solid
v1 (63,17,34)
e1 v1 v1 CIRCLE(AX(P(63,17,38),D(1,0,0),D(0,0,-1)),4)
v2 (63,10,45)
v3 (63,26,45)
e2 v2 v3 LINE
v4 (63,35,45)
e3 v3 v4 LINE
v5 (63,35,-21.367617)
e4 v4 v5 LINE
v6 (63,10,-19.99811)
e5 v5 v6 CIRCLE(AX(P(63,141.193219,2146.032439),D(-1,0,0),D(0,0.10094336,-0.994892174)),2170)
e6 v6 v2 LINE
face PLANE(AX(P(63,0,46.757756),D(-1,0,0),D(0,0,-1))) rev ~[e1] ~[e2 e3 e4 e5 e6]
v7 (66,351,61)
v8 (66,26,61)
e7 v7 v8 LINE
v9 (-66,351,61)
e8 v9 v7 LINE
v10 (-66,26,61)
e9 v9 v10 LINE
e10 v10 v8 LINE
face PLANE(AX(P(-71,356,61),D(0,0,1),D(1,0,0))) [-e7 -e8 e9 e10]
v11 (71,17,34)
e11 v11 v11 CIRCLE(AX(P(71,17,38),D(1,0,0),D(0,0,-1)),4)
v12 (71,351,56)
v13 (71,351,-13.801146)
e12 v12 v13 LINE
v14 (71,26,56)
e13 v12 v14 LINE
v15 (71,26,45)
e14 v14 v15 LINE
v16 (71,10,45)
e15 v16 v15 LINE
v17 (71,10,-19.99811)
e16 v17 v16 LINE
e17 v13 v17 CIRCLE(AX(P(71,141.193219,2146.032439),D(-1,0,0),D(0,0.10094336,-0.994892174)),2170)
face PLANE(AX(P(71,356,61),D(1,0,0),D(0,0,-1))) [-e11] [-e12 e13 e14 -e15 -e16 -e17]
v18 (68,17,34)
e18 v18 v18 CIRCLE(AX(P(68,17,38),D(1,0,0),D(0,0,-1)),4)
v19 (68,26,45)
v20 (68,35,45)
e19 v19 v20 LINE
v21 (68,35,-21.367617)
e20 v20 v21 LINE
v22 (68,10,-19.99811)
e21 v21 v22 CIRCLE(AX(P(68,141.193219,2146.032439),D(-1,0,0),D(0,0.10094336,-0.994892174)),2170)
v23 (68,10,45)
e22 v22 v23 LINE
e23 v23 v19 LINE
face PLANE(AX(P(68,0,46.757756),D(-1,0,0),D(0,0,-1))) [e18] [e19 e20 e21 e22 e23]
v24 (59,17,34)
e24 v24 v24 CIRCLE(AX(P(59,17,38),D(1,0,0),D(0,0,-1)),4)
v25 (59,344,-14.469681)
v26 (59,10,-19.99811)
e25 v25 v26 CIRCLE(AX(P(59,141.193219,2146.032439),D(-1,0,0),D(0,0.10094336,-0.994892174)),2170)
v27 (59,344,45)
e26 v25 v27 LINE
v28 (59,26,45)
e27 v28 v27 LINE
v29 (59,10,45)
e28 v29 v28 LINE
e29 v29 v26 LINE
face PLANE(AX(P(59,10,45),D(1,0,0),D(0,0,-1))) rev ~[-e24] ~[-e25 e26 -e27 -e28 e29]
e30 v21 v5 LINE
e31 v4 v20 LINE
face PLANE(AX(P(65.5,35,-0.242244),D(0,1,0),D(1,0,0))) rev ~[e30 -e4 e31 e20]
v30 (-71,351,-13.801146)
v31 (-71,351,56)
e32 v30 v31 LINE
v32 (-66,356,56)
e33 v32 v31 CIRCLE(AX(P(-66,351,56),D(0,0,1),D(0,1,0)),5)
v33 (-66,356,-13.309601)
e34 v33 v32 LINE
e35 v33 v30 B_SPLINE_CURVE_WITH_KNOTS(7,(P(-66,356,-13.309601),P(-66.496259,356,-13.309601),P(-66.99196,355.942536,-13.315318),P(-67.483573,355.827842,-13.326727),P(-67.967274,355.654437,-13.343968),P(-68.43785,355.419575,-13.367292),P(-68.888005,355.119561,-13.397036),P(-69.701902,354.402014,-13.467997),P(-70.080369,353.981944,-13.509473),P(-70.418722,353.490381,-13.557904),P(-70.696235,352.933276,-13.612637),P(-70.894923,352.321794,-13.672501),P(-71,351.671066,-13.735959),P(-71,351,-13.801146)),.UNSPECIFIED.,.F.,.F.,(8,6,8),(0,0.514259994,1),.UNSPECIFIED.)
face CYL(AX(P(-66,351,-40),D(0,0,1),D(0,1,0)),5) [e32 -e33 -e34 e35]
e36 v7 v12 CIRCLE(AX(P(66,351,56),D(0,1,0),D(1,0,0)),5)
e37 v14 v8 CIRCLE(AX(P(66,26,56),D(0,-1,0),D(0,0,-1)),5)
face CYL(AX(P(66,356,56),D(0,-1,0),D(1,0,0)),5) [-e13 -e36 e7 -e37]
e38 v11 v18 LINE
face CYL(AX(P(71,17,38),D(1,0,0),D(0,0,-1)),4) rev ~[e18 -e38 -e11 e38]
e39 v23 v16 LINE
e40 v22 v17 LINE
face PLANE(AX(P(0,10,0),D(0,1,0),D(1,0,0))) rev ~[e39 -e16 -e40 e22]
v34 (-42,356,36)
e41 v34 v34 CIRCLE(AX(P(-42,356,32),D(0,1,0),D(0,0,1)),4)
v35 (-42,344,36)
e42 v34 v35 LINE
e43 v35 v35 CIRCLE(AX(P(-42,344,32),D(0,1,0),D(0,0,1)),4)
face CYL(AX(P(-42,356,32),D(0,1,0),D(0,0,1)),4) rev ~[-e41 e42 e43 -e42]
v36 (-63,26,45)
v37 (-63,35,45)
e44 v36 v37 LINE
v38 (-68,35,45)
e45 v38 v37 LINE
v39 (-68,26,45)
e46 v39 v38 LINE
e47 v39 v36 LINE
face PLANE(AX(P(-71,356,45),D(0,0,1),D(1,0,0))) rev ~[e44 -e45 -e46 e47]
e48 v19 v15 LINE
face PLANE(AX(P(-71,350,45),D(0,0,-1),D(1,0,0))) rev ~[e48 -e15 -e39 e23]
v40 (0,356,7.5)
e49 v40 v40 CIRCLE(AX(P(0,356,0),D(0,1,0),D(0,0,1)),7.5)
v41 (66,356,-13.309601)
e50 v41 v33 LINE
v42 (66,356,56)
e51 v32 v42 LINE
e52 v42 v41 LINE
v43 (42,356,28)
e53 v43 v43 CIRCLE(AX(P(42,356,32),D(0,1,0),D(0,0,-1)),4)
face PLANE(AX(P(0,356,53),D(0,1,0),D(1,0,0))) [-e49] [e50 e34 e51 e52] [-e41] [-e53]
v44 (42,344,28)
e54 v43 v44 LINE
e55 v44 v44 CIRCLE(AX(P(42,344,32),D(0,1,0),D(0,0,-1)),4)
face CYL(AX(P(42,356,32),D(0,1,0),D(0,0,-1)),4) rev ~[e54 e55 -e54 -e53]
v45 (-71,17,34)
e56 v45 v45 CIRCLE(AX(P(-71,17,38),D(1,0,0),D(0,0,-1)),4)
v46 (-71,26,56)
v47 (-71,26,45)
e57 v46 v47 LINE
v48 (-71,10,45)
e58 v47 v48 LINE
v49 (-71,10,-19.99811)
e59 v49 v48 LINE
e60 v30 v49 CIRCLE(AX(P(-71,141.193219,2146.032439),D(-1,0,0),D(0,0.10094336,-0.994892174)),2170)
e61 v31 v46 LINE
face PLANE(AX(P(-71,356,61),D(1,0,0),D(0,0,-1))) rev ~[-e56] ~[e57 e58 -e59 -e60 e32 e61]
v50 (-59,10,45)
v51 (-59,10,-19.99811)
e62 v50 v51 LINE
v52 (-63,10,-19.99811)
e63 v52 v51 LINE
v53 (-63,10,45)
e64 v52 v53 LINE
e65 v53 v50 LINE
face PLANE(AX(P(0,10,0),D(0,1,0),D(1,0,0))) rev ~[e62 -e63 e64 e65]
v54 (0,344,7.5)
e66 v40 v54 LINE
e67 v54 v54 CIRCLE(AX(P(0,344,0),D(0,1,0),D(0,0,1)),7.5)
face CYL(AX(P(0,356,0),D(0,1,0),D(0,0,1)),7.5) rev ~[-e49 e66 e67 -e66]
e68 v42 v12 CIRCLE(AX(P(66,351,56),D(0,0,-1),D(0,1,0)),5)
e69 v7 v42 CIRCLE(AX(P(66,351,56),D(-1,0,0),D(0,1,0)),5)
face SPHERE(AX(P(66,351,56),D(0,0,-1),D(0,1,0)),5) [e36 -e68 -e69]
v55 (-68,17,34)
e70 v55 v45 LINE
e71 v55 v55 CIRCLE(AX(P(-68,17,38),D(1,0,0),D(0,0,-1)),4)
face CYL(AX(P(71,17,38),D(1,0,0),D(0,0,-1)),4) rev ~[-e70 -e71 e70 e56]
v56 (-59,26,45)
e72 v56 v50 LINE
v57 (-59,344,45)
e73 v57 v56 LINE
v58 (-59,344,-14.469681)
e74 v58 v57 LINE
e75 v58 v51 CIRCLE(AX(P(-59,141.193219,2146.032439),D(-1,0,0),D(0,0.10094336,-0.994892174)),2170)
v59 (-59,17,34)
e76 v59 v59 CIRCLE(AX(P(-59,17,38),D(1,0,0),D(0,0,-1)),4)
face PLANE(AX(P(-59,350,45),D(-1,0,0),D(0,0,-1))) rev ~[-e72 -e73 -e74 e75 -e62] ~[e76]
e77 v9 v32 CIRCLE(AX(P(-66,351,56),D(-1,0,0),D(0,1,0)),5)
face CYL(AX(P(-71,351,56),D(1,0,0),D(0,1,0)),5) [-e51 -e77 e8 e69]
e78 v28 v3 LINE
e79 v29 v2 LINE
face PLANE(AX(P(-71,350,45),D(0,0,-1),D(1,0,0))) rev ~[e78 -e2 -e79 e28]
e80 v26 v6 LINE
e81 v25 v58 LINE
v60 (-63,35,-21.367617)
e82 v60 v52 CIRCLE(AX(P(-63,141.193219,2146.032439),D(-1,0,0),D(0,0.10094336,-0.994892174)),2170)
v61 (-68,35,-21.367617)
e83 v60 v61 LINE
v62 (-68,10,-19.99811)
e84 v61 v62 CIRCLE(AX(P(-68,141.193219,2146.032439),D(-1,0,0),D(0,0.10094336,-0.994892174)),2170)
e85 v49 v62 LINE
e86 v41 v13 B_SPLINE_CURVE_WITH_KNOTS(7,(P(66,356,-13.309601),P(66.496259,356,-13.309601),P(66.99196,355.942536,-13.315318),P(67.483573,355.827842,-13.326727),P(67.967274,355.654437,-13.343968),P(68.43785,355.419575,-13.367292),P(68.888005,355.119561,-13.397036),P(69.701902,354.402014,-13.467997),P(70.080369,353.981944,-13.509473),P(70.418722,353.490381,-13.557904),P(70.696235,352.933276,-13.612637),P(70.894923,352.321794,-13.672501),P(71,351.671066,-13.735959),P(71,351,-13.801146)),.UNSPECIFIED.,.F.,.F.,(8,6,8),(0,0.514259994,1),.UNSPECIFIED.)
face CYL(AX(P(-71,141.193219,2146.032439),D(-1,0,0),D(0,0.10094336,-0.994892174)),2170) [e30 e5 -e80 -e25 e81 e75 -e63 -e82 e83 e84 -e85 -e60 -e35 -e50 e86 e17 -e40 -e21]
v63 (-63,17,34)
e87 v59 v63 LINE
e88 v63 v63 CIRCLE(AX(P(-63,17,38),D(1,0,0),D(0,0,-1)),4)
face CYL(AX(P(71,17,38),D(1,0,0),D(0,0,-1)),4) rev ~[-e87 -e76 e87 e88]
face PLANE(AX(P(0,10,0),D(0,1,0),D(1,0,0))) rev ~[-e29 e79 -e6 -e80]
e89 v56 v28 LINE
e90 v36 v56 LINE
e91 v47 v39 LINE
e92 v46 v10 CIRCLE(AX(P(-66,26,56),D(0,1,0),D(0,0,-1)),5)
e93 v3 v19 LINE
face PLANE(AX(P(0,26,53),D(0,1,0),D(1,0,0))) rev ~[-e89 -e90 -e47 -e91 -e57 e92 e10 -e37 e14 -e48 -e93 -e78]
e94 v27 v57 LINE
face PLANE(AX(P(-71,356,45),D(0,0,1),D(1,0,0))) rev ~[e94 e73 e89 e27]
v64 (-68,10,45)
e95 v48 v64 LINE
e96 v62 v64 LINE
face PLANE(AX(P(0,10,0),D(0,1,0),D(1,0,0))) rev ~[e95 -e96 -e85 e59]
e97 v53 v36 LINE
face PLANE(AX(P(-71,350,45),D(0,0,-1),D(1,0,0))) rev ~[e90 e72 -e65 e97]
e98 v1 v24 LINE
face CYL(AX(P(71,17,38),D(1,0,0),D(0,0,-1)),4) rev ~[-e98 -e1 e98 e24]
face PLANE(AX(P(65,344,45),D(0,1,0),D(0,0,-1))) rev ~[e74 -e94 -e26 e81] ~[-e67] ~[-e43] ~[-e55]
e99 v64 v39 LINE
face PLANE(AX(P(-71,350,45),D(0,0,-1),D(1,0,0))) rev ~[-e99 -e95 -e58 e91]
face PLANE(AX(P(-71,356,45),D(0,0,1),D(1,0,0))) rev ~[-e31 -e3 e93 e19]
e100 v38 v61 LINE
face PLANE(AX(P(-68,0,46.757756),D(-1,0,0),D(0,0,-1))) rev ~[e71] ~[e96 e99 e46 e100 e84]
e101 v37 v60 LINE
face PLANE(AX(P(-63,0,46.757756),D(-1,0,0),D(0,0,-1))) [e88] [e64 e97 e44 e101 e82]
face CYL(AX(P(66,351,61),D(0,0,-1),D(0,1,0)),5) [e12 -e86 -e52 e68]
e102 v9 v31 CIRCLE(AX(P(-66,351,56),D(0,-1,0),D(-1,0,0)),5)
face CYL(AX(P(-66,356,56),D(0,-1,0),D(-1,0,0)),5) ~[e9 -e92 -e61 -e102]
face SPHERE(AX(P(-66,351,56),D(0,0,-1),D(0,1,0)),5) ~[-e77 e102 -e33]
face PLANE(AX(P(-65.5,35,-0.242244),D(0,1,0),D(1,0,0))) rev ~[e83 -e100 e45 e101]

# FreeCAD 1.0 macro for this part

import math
import FreeCAD as App
import Part
import Sketcher
Q = App.Units.Quantity


def edges_at(feature, points):
    """Names of the edges that pass closest to the given points."""
    edges = feature.Shape.Edges
    near = lambda p: min(range(len(edges)), key=lambda i: edges[i].distToShape(Part.Vertex(*p))[0])
    return sorted({f"Edge{near(p) + 1}" for p in points})


def add_polygon(sketch, points):
    """Adds a closed chain of lines whose ends are joined by coincident constraints."""
    first, n = sketch.GeometryCount, len(points)
    for a, b in zip(points, points[1:] + points[:1]):
        sketch.addGeometry(Part.LineSegment(App.Vector(*a, 0), App.Vector(*b, 0)), False)
    for i in range(n):
        sketch.addConstraint(Sketcher.Constraint("Coincident", first + i, 2, first + (i + 1) % n, 1))

doc = App.newDocument("Part")
params = doc.addObject("Spreadsheet::Sheet", "Params")
for row, (alias, value) in enumerate([
    ("sketch1_width", "12 mm"),
    ("sketch1_height", "90 mm"),
    ("sketch2_radius", "10 mm"),
    ("sketch2_width", "110 mm"),
    ("sketch2_height", "340 mm"),
    ("pocket1_length", "10 mm"),
    ("pocket1_length2", "10 mm"),
    ("sketch4_width", "5 mm"),
    ("sketch4_height", "94 mm"),
    ("pocket2_length", "35 mm"),
    ("sketch5_diameter", "15 mm"),
    ("sketch5_diameter2", "8 mm"),
    ("sketch6_diameter", "8 mm"),
    ("sketch7_width", "142 mm"),
    ("sketch7_height", "16 mm"),
    ("pad1_length", "330 mm"),
    ("fillet_radius", "5 mm"),
    ("fillet2_radius", "5 mm"),
    ("fillet3_radius", "5 mm"),
    ("fillet4_radius", "5 mm"),
    ("fillet5_radius", "5 mm"),
    ("sketch8_radius", "2170 mm"),
], start=1):
    params.set(f"A{row}", alias)
    params.set(f"B{row}", "=" + value)
    params.setAlias(f"B{row}", alias)

body = doc.addObject("PartDesign::Body", "Body")

sketch1 = doc.addObject("Sketcher::SketchObject", "Sketch")
body.addObject(sketch1)
sketch1.AttachmentSupport = (doc.YZ_Plane, [""])
sketch1.MapMode = "FlatFace"
add_polygon(sketch1, [(356, -45), (356, 45), (344, 45), (344, -45)])
sketch1.addConstraint([
    Sketcher.Constraint("Vertical", 0),
    Sketcher.Constraint("Horizontal", 1),
    Sketcher.Constraint("Vertical", 2),
    Sketcher.Constraint("Horizontal", 3),
    Sketcher.Constraint("DistanceX", 1, 2, 1, 1, Q("12 mm")),
    Sketcher.Constraint("DistanceY", 0, 1, 0, 2, Q("90 mm")),
    Sketcher.Constraint("DistanceX", -1, 1, 0, 2, Q("356 mm")),
    Sketcher.Constraint("DistanceY", -1, 1, 0, 2, Q("45 mm")),
])
sketch1.setExpression("Constraints[8]", "Params.sketch1_width")
sketch1.setExpression("Constraints[9]", "Params.sketch1_height")

sketch2 = doc.addObject("Sketcher::SketchObject", "Sketch001")
body.addObject(sketch2)
sketch2.AttachmentSupport = (doc.XY_Plane, [""])
sketch2.MapMode = "FlatFace"
sketch2.addGeometry([
    Part.LineSegment(App.Vector(-65, 350, 0), App.Vector(-65, 10, 0)),
    Part.ArcOfCircle(Part.Circle(App.Vector(-55, 10, 0), App.Vector(0, 0, 1), 10), math.radians(180), math.radians(270)),
    Part.LineSegment(App.Vector(-55, 0, 0), App.Vector(55, 0, 0)),
    Part.ArcOfCircle(Part.Circle(App.Vector(55, 10, 0), App.Vector(0, 0, 1), 10), math.radians(-90), math.radians(0)),
    Part.LineSegment(App.Vector(65, 10, 0), App.Vector(65, 350, 0)),
    Part.LineSegment(App.Vector(65, 350, 0), App.Vector(-65, 350, 0)),
], False)
sketch2.addConstraint([
    Sketcher.Constraint("Tangent", 0, 2, 1, 1),
    Sketcher.Constraint("Tangent", 1, 2, 2, 1),
    Sketcher.Constraint("Tangent", 2, 2, 3, 1),
    Sketcher.Constraint("Tangent", 3, 2, 4, 1),
    Sketcher.Constraint("Coincident", 4, 2, 5, 1),
    Sketcher.Constraint("Coincident", 5, 2, 0, 1),
    Sketcher.Constraint("Vertical", 0),
    Sketcher.Constraint("Horizontal", 2),
    Sketcher.Constraint("Vertical", 4),
    Sketcher.Constraint("Horizontal", 5),
    Sketcher.Constraint("Equal", 1, 3),
    Sketcher.Constraint("Symmetric", 1, 2, 2, 2, -1, 1),
    Sketcher.Constraint("Radius", 1, Q("10 mm")),
    Sketcher.Constraint("DistanceX", 2, 1, 2, 2, Q("110 mm")),
    Sketcher.Constraint("DistanceY", 0, 2, 0, 1, Q("340 mm")),
])
sketch2.setExpression("Constraints[12]", "Params.sketch2_radius")
sketch2.setExpression("Constraints[13]", "Params.sketch2_width")
sketch2.setExpression("Constraints[14]", "Params.sketch2_height")
doc.recompute()

additivepipe = doc.addObject("PartDesign::AdditivePipe", "AdditivePipe")
body.addObject(additivepipe)
additivepipe.Profile = sketch1
additivepipe.Spine = (sketch2, ["Edge1", "Edge2", "Edge3", "Edge4", "Edge5", "Edge6"])
additivepipe.Transition = "Right corner"

sketch3 = doc.addObject("Sketcher::SketchObject", "Sketch002")
body.addObject(sketch3)
sketch3.AttachmentSupport = (doc.XZ_Plane, [""])
sketch3.MapMode = "FlatFace"
add_polygon(sketch3, [(-81, -50), (-81, 50), (81, 50), (81, -50)])
sketch3.addConstraint([
    Sketcher.Constraint("Vertical", 0),
    Sketcher.Constraint("Horizontal", 1),
    Sketcher.Constraint("Vertical", 2),
    Sketcher.Constraint("Horizontal", 3),
    Sketcher.Constraint("Symmetric", 0, 2, 2, 2, -1, 1),
    Sketcher.Constraint("DistanceX", 1, 1, 1, 2, Q("161.670885 mm")),
    Sketcher.Constraint("DistanceY", 0, 1, 0, 2, Q("99.402687 mm")),
])
pocket1 = doc.addObject("PartDesign::Pocket", "Pocket")
body.addObject(pocket1)
pocket1.Profile = sketch3
pocket1.Type = "TwoLengths"
pocket1.setExpression("Length", "Params.pocket1_length")
pocket1.setExpression("Length2", "Params.pocket1_length2")

sketch4 = doc.addObject("Sketcher::SketchObject", "Sketch003")
body.addObject(sketch4)
sketch4.AttachmentSupport = (doc.XZ_Plane, [""])
sketch4.MapMode = "FlatFace"
add_polygon(sketch4, [(-68, -47), (-68, 47), (-63, 47), (-63, -47)])
add_polygon(sketch4, [(63, -47), (63, 47), (68, 47), (68, -47)])
sketch4.addConstraint([
    Sketcher.Constraint("Vertical", 0),
    Sketcher.Constraint("Horizontal", 1),
    Sketcher.Constraint("Vertical", 2),
    Sketcher.Constraint("Horizontal", 3),
    Sketcher.Constraint("Vertical", 4),
    Sketcher.Constraint("Horizontal", 5),
    Sketcher.Constraint("Vertical", 6),
    Sketcher.Constraint("Horizontal", 7),
    Sketcher.Constraint("Symmetric", 1, 2, 4, 2, -2),
    Sketcher.Constraint("Symmetric", 3, 2, 6, 2, -2),
    Sketcher.Constraint("DistanceX", 1, 1, 1, 2, Q("5 mm")),
    Sketcher.Constraint("DistanceY", 0, 1, 0, 2, Q("94 mm")),
    Sketcher.Constraint("DistanceX", 0, 2, -1, 1, Q("68 mm")),
    Sketcher.Constraint("DistanceY", -1, 1, 0, 2, Q("46.757756 mm")),
])
sketch4.setExpression("Constraints[18]", "Params.sketch4_width")
sketch4.setExpression("Constraints[19]", "Params.sketch4_height")
pocket2 = doc.addObject("PartDesign::Pocket", "Pocket001")
body.addObject(pocket2)
pocket2.Profile = sketch4
pocket2.setExpression("Length", "Params.pocket2_length")

sketch5 = doc.addObject("Sketcher::SketchObject", "Sketch004")
body.addObject(sketch5)
sketch5.AttachmentSupport = (doc.XZ_Plane, [""])
sketch5.MapMode = "FlatFace"
sketch5.AttachmentOffset = App.Placement(App.Vector(0, 0, -356), App.Rotation())
sketch5.addGeometry([
    Part.Circle(App.Vector(0, 0, 0), App.Vector(0, 0, 1), 7.5),
    Part.Circle(App.Vector(-42, -32, 0), App.Vector(0, 0, 1), 4),
    Part.Circle(App.Vector(-42, 32, 0), App.Vector(0, 0, 1), 4),
    Part.Circle(App.Vector(42, 32, 0), App.Vector(0, 0, 1), 4),
    Part.Circle(App.Vector(42, -32, 0), App.Vector(0, 0, 1), 4),
], False)
sketch5.addConstraint([
    Sketcher.Constraint("Coincident", 0, 3, -1, 1),
    Sketcher.Constraint("Equal", 1, 2),
    Sketcher.Constraint("Equal", 2, 3),
    Sketcher.Constraint("Equal", 3, 4),
    Sketcher.Constraint("Symmetric", 1, 3, 3, 3, -1, 1),
    Sketcher.Constraint("Symmetric", 2, 3, 4, 3, -1, 1),
    Sketcher.Constraint("Symmetric", 2, 3, 3, 3, -2),
    Sketcher.Constraint("Diameter", 0, Q("15 mm")),
    Sketcher.Constraint("Diameter", 1, Q("8 mm")),
    Sketcher.Constraint("DistanceX", 1, 3, -1, 1, Q("42 mm")),
    Sketcher.Constraint("DistanceY", 1, 3, -1, 1, Q("32 mm")),
])
sketch5.setExpression("Constraints[7]", "Params.sketch5_diameter")
sketch5.setExpression("Constraints[8]", "Params.sketch5_diameter2")
pocket3 = doc.addObject("PartDesign::Pocket", "Pocket002")
body.addObject(pocket3)
pocket3.Profile = sketch5
pocket3.Type = "ThroughAll"
pocket3.Reversed = True

sketch6 = doc.addObject("Sketcher::SketchObject", "Sketch005")
body.addObject(sketch6)
sketch6.AttachmentSupport = (doc.YZ_Plane, [""])
sketch6.MapMode = "FlatFace"
sketch6.AttachmentOffset = App.Placement(App.Vector(0, 0, 71), App.Rotation())
sketch6.addGeometry(Part.Circle(App.Vector(17, 38, 0), App.Vector(0, 0, 1), 4), False)
sketch6.addConstraint([
    Sketcher.Constraint("Diameter", 0, Q("8 mm")),
    Sketcher.Constraint("DistanceX", -1, 1, 0, 3, Q("17 mm")),
    Sketcher.Constraint("DistanceY", -1, 1, 0, 3, Q("38 mm")),
])
sketch6.setExpression("Constraints[0]", "Params.sketch6_diameter")
pocket4 = doc.addObject("PartDesign::Pocket", "Pocket003")
body.addObject(pocket4)
pocket4.Profile = sketch6
pocket4.Type = "ThroughAll"

sketch7 = doc.addObject("Sketcher::SketchObject", "Sketch006")
body.addObject(sketch7)
sketch7.AttachmentSupport = (doc.XZ_Plane, [""])
sketch7.MapMode = "FlatFace"
sketch7.AttachmentOffset = App.Placement(App.Vector(0, 0, -356), App.Rotation())
add_polygon(sketch7, [(-71, 45), (-71, 61), (71, 61), (71, 45)])
sketch7.addConstraint([
    Sketcher.Constraint("Vertical", 0),
    Sketcher.Constraint("Horizontal", 1),
    Sketcher.Constraint("Vertical", 2),
    Sketcher.Constraint("Horizontal", 3),
    Sketcher.Constraint("DistanceX", 1, 1, 1, 2, Q("142 mm")),
    Sketcher.Constraint("DistanceY", 0, 1, 0, 2, Q("16 mm")),
    Sketcher.Constraint("DistanceX", 0, 2, -1, 1, Q("71 mm")),
    Sketcher.Constraint("DistanceY", -1, 1, 0, 2, Q("61 mm")),
])
sketch7.setExpression("Constraints[8]", "Params.sketch7_width")
sketch7.setExpression("Constraints[9]", "Params.sketch7_height")
pad1 = doc.addObject("PartDesign::Pad", "Pad")
body.addObject(pad1)
pad1.Profile = sketch7
pad1.setExpression("Length", "Params.pad1_length")
doc.recompute()

fillet = doc.addObject("PartDesign::Fillet", "Fillet")
body.addObject(fillet)
fillet.Base = (pad1, edges_at(pad1, [(59, 177, -45)]))
fillet.setExpression("Radius", "Params.fillet_radius")
doc.recompute()

fillet2 = doc.addObject("PartDesign::Fillet", "Fillet001")
body.addObject(fillet2)
fillet2.Base = (fillet, edges_at(fillet, [(71, 183, -45)]))
fillet2.setExpression("Radius", "Params.fillet2_radius")
doc.recompute()

fillet3 = doc.addObject("PartDesign::Fillet", "Fillet002")
body.addObject(fillet3)
fillet3.Base = (fillet2, edges_at(fillet2, [(-59, 177, -45)]))
fillet3.setExpression("Radius", "Params.fillet3_radius")
doc.recompute()

fillet4 = doc.addObject("PartDesign::Fillet", "Fillet003")
body.addObject(fillet4)
fillet4.Base = (fillet3, edges_at(fillet3, [(-71, 183, -45)]))
fillet4.setExpression("Radius", "Params.fillet4_radius")
doc.recompute()

fillet5 = doc.addObject("PartDesign::Fillet", "Fillet004")
body.addObject(fillet5)
fillet5.Base = (fillet4, edges_at(fillet4, [
    (71, 356, 10.5),
    (69.536, 356, -43.536),
    (0, 356, -45),
    (0, 356, -45),
    (-69.536, 356, -43.536),
    (-71, 356, 10.5),
    (0, 356, 61),
    (-71, 191, 61),
    (71, 191, 61),
]))
fillet5.setExpression("Radius", "Params.fillet5_radius")

sketch8 = doc.addObject("Sketcher::SketchObject", "Sketch007")
body.addObject(sketch8)
sketch8.AttachmentSupport = (doc.YZ_Plane, [""])
sketch8.MapMode = "FlatFace"
sketch8.AttachmentOffset = App.Placement(App.Vector(0, 0, -71), App.Rotation())
sketch8.addGeometry([
    Part.LineSegment(App.Vector(10, -80, 0), App.Vector(10, -20, 0)),
    Part.ArcOfCircle(Part.Circle(App.Vector(141, 2146, 0), App.Vector(0, 0, 1), 2170), math.radians(-93.47), math.radians(-84.21)),
    Part.LineSegment(App.Vector(360, -13, 0), App.Vector(406, -80, 0)),
    Part.LineSegment(App.Vector(406, -80, 0), App.Vector(10, -80, 0)),
], False)
sketch8.addConstraint([
    Sketcher.Constraint("Coincident", 0, 2, 1, 1),
    Sketcher.Constraint("Coincident", 1, 2, 2, 1),
    Sketcher.Constraint("Coincident", 2, 2, 3, 1),
    Sketcher.Constraint("Coincident", 3, 2, 0, 1),
    Sketcher.Constraint("Vertical", 0),
    Sketcher.Constraint("Horizontal", 3),
    Sketcher.Constraint("Radius", 1, Q("2170 mm")),
    Sketcher.Constraint("DistanceX", -1, 1, 0, 2, Q("10 mm")),
    Sketcher.Constraint("DistanceX", 3, 2, 3, 1, Q("396.442117 mm")),
    Sketcher.Constraint("DistanceY", 0, 1, 0, 2, Q("59.774923 mm")),
    Sketcher.Constraint("DistanceX", -1, 1, 1, 3, Q("141.193219 mm")),
    Sketcher.Constraint("DistanceY", -1, 1, 1, 3, Q("2146.032439 mm")),
    Sketcher.Constraint("Distance", 2, Q("81.294563 mm")),
])
sketch8.setExpression("Constraints[6]", "Params.sketch8_radius")
pocket5 = doc.addObject("PartDesign::Pocket", "Pocket004")
body.addObject(pocket5)
pocket5.Profile = sketch8
pocket5.Type = "ThroughAll"
pocket5.Reversed = True

doc.recompute()
